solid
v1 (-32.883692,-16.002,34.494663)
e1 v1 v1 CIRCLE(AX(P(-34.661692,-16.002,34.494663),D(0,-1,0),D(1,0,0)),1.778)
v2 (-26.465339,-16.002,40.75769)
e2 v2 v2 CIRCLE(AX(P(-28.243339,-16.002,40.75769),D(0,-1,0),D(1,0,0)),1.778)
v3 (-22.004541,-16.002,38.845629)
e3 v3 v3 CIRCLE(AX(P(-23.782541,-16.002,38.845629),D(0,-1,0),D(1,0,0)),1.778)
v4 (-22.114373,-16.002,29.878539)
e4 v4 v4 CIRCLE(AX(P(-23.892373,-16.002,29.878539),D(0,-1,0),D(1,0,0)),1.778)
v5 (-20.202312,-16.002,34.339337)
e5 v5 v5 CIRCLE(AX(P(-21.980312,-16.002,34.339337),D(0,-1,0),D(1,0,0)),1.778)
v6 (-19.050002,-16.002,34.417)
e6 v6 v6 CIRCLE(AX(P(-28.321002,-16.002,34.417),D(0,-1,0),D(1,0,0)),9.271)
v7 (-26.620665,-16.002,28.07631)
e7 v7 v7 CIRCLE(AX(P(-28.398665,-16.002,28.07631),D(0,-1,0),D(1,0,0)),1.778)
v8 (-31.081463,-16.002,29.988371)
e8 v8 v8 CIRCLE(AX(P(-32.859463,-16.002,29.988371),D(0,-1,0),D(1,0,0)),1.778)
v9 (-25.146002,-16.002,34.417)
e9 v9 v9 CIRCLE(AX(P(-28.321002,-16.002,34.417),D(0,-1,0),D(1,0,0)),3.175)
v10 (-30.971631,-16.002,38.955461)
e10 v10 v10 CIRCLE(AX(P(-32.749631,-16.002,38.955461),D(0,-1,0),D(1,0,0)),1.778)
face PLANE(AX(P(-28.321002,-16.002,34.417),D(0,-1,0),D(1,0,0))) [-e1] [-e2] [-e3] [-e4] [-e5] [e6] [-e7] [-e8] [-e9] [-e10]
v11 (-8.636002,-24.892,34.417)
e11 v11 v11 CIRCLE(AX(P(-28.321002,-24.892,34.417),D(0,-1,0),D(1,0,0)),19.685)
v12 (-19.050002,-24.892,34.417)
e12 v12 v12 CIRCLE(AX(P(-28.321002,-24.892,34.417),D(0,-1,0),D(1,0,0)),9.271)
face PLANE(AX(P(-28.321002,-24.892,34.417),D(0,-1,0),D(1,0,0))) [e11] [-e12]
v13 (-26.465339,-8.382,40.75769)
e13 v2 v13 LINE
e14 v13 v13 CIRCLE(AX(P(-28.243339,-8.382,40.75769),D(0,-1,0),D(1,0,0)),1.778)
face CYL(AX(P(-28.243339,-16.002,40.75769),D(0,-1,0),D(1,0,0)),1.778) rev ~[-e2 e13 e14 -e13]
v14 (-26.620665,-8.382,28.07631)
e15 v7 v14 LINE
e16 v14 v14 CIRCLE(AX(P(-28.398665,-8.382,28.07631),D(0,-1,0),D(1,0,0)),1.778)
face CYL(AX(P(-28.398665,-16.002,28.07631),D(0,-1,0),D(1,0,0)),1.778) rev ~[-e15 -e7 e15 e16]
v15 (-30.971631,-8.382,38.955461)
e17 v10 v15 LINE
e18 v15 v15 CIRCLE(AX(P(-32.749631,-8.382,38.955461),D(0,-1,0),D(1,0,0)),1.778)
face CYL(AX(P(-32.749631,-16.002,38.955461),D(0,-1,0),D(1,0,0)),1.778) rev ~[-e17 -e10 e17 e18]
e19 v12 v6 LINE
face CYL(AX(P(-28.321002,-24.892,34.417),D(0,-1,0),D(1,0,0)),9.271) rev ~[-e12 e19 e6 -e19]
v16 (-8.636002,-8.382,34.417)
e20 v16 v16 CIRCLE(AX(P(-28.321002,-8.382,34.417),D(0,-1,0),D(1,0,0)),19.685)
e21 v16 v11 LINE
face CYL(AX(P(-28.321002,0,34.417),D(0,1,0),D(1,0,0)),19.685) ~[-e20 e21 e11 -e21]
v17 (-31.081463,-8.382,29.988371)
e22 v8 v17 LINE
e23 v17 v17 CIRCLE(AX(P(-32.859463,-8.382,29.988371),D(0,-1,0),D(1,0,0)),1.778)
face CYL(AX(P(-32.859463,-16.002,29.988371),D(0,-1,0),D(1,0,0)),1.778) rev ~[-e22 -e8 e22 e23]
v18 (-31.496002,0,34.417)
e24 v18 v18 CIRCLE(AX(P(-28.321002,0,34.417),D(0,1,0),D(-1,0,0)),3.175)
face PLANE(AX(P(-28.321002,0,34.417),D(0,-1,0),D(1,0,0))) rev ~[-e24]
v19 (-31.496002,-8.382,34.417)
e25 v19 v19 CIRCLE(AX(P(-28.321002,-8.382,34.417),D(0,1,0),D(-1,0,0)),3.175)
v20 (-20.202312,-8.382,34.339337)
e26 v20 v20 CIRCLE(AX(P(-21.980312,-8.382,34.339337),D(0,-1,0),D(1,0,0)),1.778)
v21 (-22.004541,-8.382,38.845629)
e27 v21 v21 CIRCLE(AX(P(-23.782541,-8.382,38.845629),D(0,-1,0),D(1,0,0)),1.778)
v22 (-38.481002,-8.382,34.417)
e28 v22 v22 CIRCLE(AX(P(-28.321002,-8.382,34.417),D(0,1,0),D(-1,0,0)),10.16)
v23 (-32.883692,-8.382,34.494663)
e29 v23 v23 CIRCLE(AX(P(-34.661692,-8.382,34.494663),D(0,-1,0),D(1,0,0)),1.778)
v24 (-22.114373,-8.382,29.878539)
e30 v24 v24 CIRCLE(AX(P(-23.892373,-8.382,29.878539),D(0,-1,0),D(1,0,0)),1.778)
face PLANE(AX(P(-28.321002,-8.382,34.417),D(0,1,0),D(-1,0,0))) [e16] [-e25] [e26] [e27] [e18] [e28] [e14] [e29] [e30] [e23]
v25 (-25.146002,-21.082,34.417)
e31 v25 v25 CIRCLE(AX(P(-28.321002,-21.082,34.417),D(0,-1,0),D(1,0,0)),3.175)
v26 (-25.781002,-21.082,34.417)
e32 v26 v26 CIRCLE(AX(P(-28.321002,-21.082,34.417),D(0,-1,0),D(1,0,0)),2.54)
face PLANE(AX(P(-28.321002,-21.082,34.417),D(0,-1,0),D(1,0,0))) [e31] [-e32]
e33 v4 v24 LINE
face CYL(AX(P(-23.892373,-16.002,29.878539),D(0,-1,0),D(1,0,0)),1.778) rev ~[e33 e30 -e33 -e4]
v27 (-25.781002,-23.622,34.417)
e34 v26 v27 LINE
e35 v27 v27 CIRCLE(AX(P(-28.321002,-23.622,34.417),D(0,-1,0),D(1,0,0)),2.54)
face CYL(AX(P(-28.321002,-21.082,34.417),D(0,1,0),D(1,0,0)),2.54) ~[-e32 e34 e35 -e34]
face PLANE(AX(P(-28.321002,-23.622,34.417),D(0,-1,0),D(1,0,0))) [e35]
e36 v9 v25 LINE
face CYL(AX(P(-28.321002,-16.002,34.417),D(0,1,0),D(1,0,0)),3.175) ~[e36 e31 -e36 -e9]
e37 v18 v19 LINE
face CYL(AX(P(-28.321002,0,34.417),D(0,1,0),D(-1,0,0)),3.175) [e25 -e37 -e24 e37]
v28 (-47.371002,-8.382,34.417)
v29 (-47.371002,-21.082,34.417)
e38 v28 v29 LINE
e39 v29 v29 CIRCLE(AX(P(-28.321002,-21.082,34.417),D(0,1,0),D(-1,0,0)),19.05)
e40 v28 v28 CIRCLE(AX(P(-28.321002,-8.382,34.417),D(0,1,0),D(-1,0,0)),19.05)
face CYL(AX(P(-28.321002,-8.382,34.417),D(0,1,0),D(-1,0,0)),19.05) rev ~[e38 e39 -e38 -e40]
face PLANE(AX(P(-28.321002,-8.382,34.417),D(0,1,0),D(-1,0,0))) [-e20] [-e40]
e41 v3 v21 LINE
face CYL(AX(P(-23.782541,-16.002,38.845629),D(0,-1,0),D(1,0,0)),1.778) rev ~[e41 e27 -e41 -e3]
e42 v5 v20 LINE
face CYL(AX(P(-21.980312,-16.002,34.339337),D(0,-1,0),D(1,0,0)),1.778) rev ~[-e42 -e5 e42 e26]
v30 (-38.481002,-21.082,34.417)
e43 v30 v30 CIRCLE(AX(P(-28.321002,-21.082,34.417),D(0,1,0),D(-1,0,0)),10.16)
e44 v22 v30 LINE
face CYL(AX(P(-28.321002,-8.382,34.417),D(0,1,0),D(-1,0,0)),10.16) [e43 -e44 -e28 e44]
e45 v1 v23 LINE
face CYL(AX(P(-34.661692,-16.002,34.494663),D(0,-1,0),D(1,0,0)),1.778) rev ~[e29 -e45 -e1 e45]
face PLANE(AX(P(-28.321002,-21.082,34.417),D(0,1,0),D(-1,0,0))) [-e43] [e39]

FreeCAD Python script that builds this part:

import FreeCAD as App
import Part
import Sketcher
Q = App.Units.Quantity

doc = App.newDocument("Part")
params = doc.addObject("Spreadsheet::Sheet", "Params")
for row, (alias, value) in enumerate([
    ("sketch1_diameter", "1.55 in"),
    ("pad1_length", "0.98 in"),
    ("sketch2_diameter", "1.55 in"),
    ("sketch2_diameter2", "0.25 in"),
    ("pocket1_length", "0.33 in"),
    ("sketch3_diameter", "0.73 in"),
    ("pocket2_length", "0.35 in"),
    ("sketch4_diameter", "0.25 in"),
    ("pad2_length", "0.2 in"),
    ("sketch5_diameter", "0.14 in"),
    ("pocket3_length", "0.305 in"),
    ("sketch6_diameter", "0.2 in"),
    ("pad3_length", "0.1 in"),
    ("sketch7_diameter", "1.5 in"),
    ("sketch7_diameter2", "0.8 in"),
    ("pocket4_length", "0.5 in"),
], start=1):
    params.set(f"A{row}", alias)
    params.set(f"B{row}", "=" + value)
    params.setAlias(f"B{row}", alias)

body = doc.addObject("PartDesign::Body", "Body")

sketch1 = doc.addObject("Sketcher::SketchObject", "Sketch")
body.addObject(sketch1)
sketch1.AttachmentSupport = (doc.XZ_Plane, [""])
sketch1.MapMode = "FlatFace"
sketch1.addGeometry(Part.Circle(App.Vector(-28, 34, 0), App.Vector(0, 0, 1), 20), False)
sketch1.addConstraint(Sketcher.Constraint("Diameter", 0, Q("1.55 in")))
sketch1.addConstraint(Sketcher.Constraint("DistanceX", 0, 3, -1, 1, Q("1.1150001 in")))
sketch1.addConstraint(Sketcher.Constraint("DistanceY", -1, 1, 0, 3, Q("1.355 in")))
sketch1.setExpression("Constraints[0]", "Params.sketch1_diameter")
pad1 = doc.addObject("PartDesign::Pad", "Pad")
body.addObject(pad1)
pad1.Profile = sketch1
pad1.setExpression("Length", "Params.pad1_length")

sketch2 = doc.addObject("Sketcher::SketchObject", "Sketch001")
body.addObject(sketch2)
sketch2.AttachmentSupport = (doc.XZ_Plane, [""])
sketch2.MapMode = "FlatFace"
sketch2.addGeometry(Part.Circle(App.Vector(-28.3, 34.4, 0), App.Vector(0, 0, 1), 19.7), False)
sketch2.addGeometry(Part.Circle(App.Vector(-28.3, 34.4, 0), App.Vector(0, 0, 1), 3.2), False)
sketch2.addConstraint(Sketcher.Constraint("Coincident", 1, 3, 0, 3))
sketch2.addConstraint(Sketcher.Constraint("Diameter", 0, Q("1.55 in")))
sketch2.addConstraint(Sketcher.Constraint("Diameter", 1, Q("0.25 in")))
sketch2.addConstraint(Sketcher.Constraint("DistanceX", 0, 3, -1, 1, Q("1.1150001 in")))
sketch2.addConstraint(Sketcher.Constraint("DistanceY", -1, 1, 0, 3, Q("1.355 in")))
sketch2.setExpression("Constraints[1]", "Params.sketch2_diameter")
sketch2.setExpression("Constraints[2]", "Params.sketch2_diameter2")
pocket1 = doc.addObject("PartDesign::Pocket", "Pocket")
body.addObject(pocket1)
pocket1.Profile = sketch2
pocket1.setExpression("Length", "Params.pocket1_length")
pocket1.Reversed = True

sketch3 = doc.addObject("Sketcher::SketchObject", "Sketch002")
body.addObject(sketch3)
sketch3.AttachmentSupport = (doc.XZ_Plane, [""])
sketch3.MapMode = "FlatFace"
sketch3.AttachmentOffset = App.Placement(App.Vector(0, 0, 0.98 * 25.4), App.Rotation())
sketch3.addGeometry(Part.Circle(App.Vector(-28, 34, 0), App.Vector(0, 0, 1), 9), False)
sketch3.addConstraint(Sketcher.Constraint("Diameter", 0, Q("0.73 in")))
sketch3.addConstraint(Sketcher.Constraint("DistanceX", 0, 3, -1, 1, Q("1.1150001 in")))
sketch3.addConstraint(Sketcher.Constraint("DistanceY", -1, 1, 0, 3, Q("1.355 in")))
sketch3.setExpression("Constraints[0]", "Params.sketch3_diameter")
pocket2 = doc.addObject("PartDesign::Pocket", "Pocket001")
body.addObject(pocket2)
pocket2.Profile = sketch3
pocket2.setExpression("Length", "Params.pocket2_length")

sketch4 = doc.addObject("Sketcher::SketchObject", "Sketch003")
body.addObject(sketch4)
sketch4.AttachmentSupport = (doc.XZ_Plane, [""])
sketch4.MapMode = "FlatFace"
sketch4.AttachmentOffset = App.Placement(App.Vector(0, 0, 0.63 * 25.4), App.Rotation())
sketch4.addGeometry(Part.Circle(App.Vector(-28.3, 34.4, 0), App.Vector(0, 0, 1), 3.2), False)
sketch4.addConstraint(Sketcher.Constraint("Diameter", 0, Q("0.25 in")))
sketch4.addConstraint(Sketcher.Constraint("DistanceX", 0, 3, -1, 1, Q("1.1150001 in")))
sketch4.addConstraint(Sketcher.Constraint("DistanceY", -1, 1, 0, 3, Q("1.355 in")))
sketch4.setExpression("Constraints[0]", "Params.sketch4_diameter")
pad2 = doc.addObject("PartDesign::Pad", "Pad001")
body.addObject(pad2)
pad2.Profile = sketch4
pad2.setExpression("Length", "Params.pad2_length")

sketch5 = doc.addObject("Sketcher::SketchObject", "Sketch004")
body.addObject(sketch5)
sketch5.AttachmentSupport = (doc.XZ_Plane, [""])
sketch5.MapMode = "FlatFace"
sketch5.AttachmentOffset = App.Placement(App.Vector(0, 0, 0.63 * 25.4), App.Rotation())
sketch5.addGeometry(Part.Circle(App.Vector(-32.7, 39, 0), App.Vector(0, 0, 1), 1.8), False)
sketch5.addGeometry(Part.Circle(App.Vector(-28.2, 40.8, 0), App.Vector(0, 0, 1), 1.8), False)
sketch5.addGeometry(Part.Circle(App.Vector(-23.8, 38.8, 0), App.Vector(0, 0, 1), 1.8), False)
sketch5.addGeometry(Part.Circle(App.Vector(-22, 34.3, 0), App.Vector(0, 0, 1), 1.8), False)
sketch5.addGeometry(Part.Circle(App.Vector(-23.9, 29.9, 0), App.Vector(0, 0, 1), 1.8), False)
sketch5.addGeometry(Part.Circle(App.Vector(-28.4, 28.1, 0), App.Vector(0, 0, 1), 1.8), False)
sketch5.addGeometry(Part.Circle(App.Vector(-32.9, 30, 0), App.Vector(0, 0, 1), 1.8), False)
sketch5.addGeometry(Part.Circle(App.Vector(-34.7, 34.5, 0), App.Vector(0, 0, 1), 1.8), False)
sketch5.addConstraint(Sketcher.Constraint("Equal", 0, 1))
sketch5.addConstraint(Sketcher.Constraint("Equal", 1, 2))
sketch5.addConstraint(Sketcher.Constraint("Equal", 2, 3))
sketch5.addConstraint(Sketcher.Constraint("Equal", 3, 4))
sketch5.addConstraint(Sketcher.Constraint("Equal", 4, 5))
sketch5.addConstraint(Sketcher.Constraint("Equal", 5, 6))
sketch5.addConstraint(Sketcher.Constraint("Equal", 6, 7))
sketch5.addConstraint(Sketcher.Constraint("Diameter", 0, Q("0.14 in")))
sketch5.addConstraint(Sketcher.Constraint("DistanceX", 1, 3, 2, 3, Q("4.460798 mm")))
sketch5.addConstraint(Sketcher.Constraint("DistanceY", 4, 3, 3, 3, Q("4.460798 mm")))
sketch5.addConstraint(Sketcher.Constraint("DistanceX", 0, 3, -1, 1, Q("32.749631 mm")))
sketch5.addConstraint(Sketcher.Constraint("DistanceY", -1, 1, 0, 3, Q("38.955461 mm")))
sketch5.addConstraint(Sketcher.Constraint("DistanceX", 1, 3, -1, 1, Q("28.243339 mm")))
sketch5.addConstraint(Sketcher.Constraint("DistanceY", -1, 1, 1, 3, Q("40.75769 mm")))
sketch5.addConstraint(Sketcher.Constraint("DistanceY", -1, 1, 2, 3, Q("38.845629 mm")))
sketch5.addConstraint(Sketcher.Constraint("DistanceY", -1, 1, 4, 3, Q("29.878539 mm")))
sketch5.addConstraint(Sketcher.Constraint("DistanceY", -1, 1, 5, 3, Q("28.07631 mm")))
sketch5.addConstraint(Sketcher.Constraint("DistanceY", -1, 1, 6, 3, Q("29.988371 mm")))
sketch5.addConstraint(Sketcher.Constraint("DistanceX", 2, 3, 3, 3, Q("1.802229 mm")))
sketch5.addConstraint(Sketcher.Constraint("DistanceX", 4, 3, 3, 3, Q("1.912061 mm")))
sketch5.addConstraint(Sketcher.Constraint("DistanceX", 6, 3, 0, 3, Q("0.109832 mm")))
sketch5.addConstraint(Sketcher.Constraint("DistanceX", 7, 3, 0, 3, Q("1.912061 mm")))
sketch5.addConstraint(Sketcher.Constraint("DistanceX", 5, 3, -1, 1, Q("28.398665 mm")))
sketch5.addConstraint(Sketcher.Constraint("DistanceY", -1, 1, 7, 3, Q("34.494663 mm")))
sketch5.setExpression("Constraints[7]", "Params.sketch5_diameter")
pocket3 = doc.addObject("PartDesign::Pocket", "Pocket002")
body.addObject(pocket3)
pocket3.Profile = sketch5
pocket3.setExpression("Length", "Params.pocket3_length")

sketch6 = doc.addObject("Sketcher::SketchObject", "Sketch005")
body.addObject(sketch6)
sketch6.AttachmentSupport = (doc.XZ_Plane, [""])
sketch6.MapMode = "FlatFace"
sketch6.AttachmentOffset = App.Placement(App.Vector(0, 0, 0.83 * 25.4), App.Rotation())
sketch6.addGeometry(Part.Circle(App.Vector(-28.3, 34.4, 0), App.Vector(0, 0, 1), 2.5), False)
sketch6.addConstraint(Sketcher.Constraint("Diameter", 0, Q("0.2 in")))
sketch6.addConstraint(Sketcher.Constraint("DistanceX", 0, 3, -1, 1, Q("1.1150001 in")))
sketch6.addConstraint(Sketcher.Constraint("DistanceY", -1, 1, 0, 3, Q("1.355 in")))
sketch6.setExpression("Constraints[0]", "Params.sketch6_diameter")
pad3 = doc.addObject("PartDesign::Pad", "Pad002")
body.addObject(pad3)
pad3.Profile = sketch6
pad3.setExpression("Length", "Params.pad3_length")

sketch7 = doc.addObject("Sketcher::SketchObject", "Sketch006")
body.addObject(sketch7)
sketch7.AttachmentSupport = (doc.XZ_Plane, [""])
sketch7.MapMode = "FlatFace"
sketch7.AttachmentOffset = App.Placement(App.Vector(0, 0, 0.33 * 25.4), App.Rotation())
sketch7.addGeometry(Part.Circle(App.Vector(-28, 34, 0), App.Vector(0, 0, 1), 19), False)
sketch7.addGeometry(Part.Circle(App.Vector(-28, 34, 0), App.Vector(0, 0, 1), 10), False)
sketch7.addConstraint(Sketcher.Constraint("Coincident", 1, 3, 0, 3))
sketch7.addConstraint(Sketcher.Constraint("Diameter", 0, Q("1.5 in")))
sketch7.addConstraint(Sketcher.Constraint("Diameter", 1, Q("0.8 in")))
sketch7.addConstraint(Sketcher.Constraint("DistanceX", 0, 3, -1, 1, Q("1.1150001 in")))
sketch7.addConstraint(Sketcher.Constraint("DistanceY", -1, 1, 0, 3, Q("1.355 in")))
sketch7.setExpression("Constraints[1]", "Params.sketch7_diameter")
sketch7.setExpression("Constraints[2]", "Params.sketch7_diameter2")
pocket4 = doc.addObject("PartDesign::Pocket", "Pocket003")
body.addObject(pocket4)
pocket4.Profile = sketch7
pocket4.setExpression("Length", "Params.pocket4_length")
pocket4.Reversed = True

doc.recompute()
